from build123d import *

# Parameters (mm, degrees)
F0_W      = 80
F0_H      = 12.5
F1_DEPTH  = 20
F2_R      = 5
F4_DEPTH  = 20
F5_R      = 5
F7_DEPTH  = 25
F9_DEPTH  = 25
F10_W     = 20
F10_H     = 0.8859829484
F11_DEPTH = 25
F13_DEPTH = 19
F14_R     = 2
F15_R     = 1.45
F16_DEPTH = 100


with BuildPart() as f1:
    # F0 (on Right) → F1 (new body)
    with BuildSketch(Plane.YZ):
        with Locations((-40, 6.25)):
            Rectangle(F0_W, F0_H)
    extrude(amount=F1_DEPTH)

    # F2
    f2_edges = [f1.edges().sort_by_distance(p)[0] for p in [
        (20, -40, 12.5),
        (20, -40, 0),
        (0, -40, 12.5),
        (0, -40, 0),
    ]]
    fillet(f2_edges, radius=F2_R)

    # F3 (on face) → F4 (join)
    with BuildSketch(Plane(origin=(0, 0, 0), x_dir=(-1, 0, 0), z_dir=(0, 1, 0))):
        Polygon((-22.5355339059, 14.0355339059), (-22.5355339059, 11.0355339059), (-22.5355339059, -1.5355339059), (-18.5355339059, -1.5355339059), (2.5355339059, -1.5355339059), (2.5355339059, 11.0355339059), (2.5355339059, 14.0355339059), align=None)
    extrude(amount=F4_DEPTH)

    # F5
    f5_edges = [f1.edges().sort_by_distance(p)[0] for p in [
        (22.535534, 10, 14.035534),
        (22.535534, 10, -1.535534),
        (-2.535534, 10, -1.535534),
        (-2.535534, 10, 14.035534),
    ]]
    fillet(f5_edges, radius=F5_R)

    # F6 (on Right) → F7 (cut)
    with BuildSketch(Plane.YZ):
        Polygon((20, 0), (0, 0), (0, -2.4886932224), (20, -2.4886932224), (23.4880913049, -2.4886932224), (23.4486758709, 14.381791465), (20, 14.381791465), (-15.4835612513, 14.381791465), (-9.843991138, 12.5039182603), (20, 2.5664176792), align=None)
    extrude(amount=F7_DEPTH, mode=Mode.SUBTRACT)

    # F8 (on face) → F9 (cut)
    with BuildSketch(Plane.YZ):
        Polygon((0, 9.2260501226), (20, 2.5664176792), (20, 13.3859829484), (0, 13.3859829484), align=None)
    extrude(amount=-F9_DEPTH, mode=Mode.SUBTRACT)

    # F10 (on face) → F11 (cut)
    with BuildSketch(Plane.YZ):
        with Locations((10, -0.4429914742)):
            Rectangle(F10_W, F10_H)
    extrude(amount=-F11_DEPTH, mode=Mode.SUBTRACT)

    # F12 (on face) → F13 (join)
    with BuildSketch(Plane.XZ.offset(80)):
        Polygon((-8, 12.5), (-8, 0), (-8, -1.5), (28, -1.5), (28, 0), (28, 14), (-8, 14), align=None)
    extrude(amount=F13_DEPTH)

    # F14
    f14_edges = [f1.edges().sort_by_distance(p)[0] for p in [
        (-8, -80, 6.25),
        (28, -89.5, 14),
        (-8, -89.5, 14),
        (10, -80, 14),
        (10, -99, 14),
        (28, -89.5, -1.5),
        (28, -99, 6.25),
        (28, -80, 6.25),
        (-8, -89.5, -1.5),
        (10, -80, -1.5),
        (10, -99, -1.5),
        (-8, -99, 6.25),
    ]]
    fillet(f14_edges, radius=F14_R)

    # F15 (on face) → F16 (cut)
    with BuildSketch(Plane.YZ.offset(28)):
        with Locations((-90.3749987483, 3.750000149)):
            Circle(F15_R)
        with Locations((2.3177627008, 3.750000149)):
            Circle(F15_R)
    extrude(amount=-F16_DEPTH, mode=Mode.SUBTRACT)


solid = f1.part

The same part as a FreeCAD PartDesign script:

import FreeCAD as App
import Part
import Sketcher

V = App.Vector
Q = App.Units.Quantity


def edges_at(feature, points):
    """Names of the edges that pass closest to the given points."""
    edges = feature.Shape.Edges
    near = lambda p: min(range(len(edges)), key=lambda i: edges[i].distToShape(Part.Vertex(*p))[0])
    return sorted({f"Edge{near(p) + 1}" for p in points})

doc = App.newDocument("Part")
body = doc.addObject("PartDesign::Body", "Body")

sketch1 = body.newObject("Sketcher::SketchObject", "Sketch")
sketch1.AttachmentSupport = (doc.getObject("YZ_Plane"), [""])
sketch1.MapMode = "FlatFace"
sketch1.addGeometry([
    Part.LineSegment(V(-80, 12, 0), V(-80, 0, 0)),
    Part.LineSegment(V(-80, 0, 0), V(0, 0, 0)),
    Part.LineSegment(V(0, 0, 0), V(0, 12, 0)),
    Part.LineSegment(V(0, 12, 0), V(-80, 12, 0)),
], False)
sketch1.addConstraint([
    Sketcher.Constraint("Coincident", 0, 2, 1, 1),
    Sketcher.Constraint("Coincident", 1, 2, 2, 1),
    Sketcher.Constraint("Coincident", 2, 2, 3, 1),
    Sketcher.Constraint("Coincident", 3, 2, 0, 1),
    Sketcher.Constraint("Vertical", 0),
    Sketcher.Constraint("Horizontal", 1),
    Sketcher.Constraint("Vertical", 2),
    Sketcher.Constraint("Horizontal", 3),
    Sketcher.Constraint("Coincident", 1, 2, -1, 1),
    Sketcher.Constraint("DistanceX", 1, 1, 1, 2, Q("80 mm")),
    Sketcher.Constraint("DistanceY", 0, 2, 0, 1, Q("12.5 mm")),
])
pad1 = body.newObject("PartDesign::Pad", "Pad")
pad1.Profile = sketch1
pad1.Length = 20
doc.recompute()

fillet = body.newObject("PartDesign::Fillet", "Fillet")
fillet.Base = (pad1, edges_at(pad1, [
    (20, -40, 12.5),
    (20, -40, 0),
    (0, -40, 12.5),
    (0, -40, 0),
]))
fillet.Radius = 5

sketch2 = body.newObject("Sketcher::SketchObject", "Sketch001")
sketch2.AttachmentSupport = (doc.getObject("XZ_Plane"), [""])
sketch2.MapMode = "FlatFace"
sketch2.addGeometry([
    Part.LineSegment(V(23, 14, 0), V(23, -2, 0)),
    Part.LineSegment(V(23, -2, 0), V(-3, -2, 0)),
    Part.LineSegment(V(-3, -2, 0), V(-3, 14, 0)),
    Part.LineSegment(V(-3, 14, 0), V(23, 14, 0)),
], False)
sketch2.addConstraint([
    Sketcher.Constraint("Coincident", 0, 2, 1, 1),
    Sketcher.Constraint("Coincident", 1, 2, 2, 1),
    Sketcher.Constraint("Coincident", 2, 2, 3, 1),
    Sketcher.Constraint("Coincident", 3, 2, 0, 1),
    Sketcher.Constraint("Vertical", 0),
    Sketcher.Constraint("Horizontal", 1),
    Sketcher.Constraint("Vertical", 2),
    Sketcher.Constraint("Horizontal", 3),
    Sketcher.Constraint("DistanceX", 1, 2, 1, 1, Q("25.071068 mm")),
    Sketcher.Constraint("DistanceY", 0, 2, 0, 1, Q("15.571068 mm")),
    Sketcher.Constraint("DistanceX", -1, 1, 0, 2, Q("22.535534 mm")),
    Sketcher.Constraint("DistanceY", 0, 2, -1, 1, Q("1.535534 mm")),
])
pad2 = body.newObject("PartDesign::Pad", "Pad001")
pad2.Profile = sketch2
pad2.Length = 20
pad2.Reversed = True
doc.recompute()

fillet2 = body.newObject("PartDesign::Fillet", "Fillet001")
fillet2.Base = (pad2, edges_at(pad2, [
    (22.536, 10, 14.036),
    (22.536, 10, -1.536),
    (-2.536, 10, -1.536),
    (-2.536, 10, 14.036),
]))
fillet2.Radius = 5

sketch3 = body.newObject("Sketcher::SketchObject", "Sketch002")
sketch3.AttachmentSupport = (doc.getObject("YZ_Plane"), [""])
sketch3.MapMode = "FlatFace"
sketch3.addGeometry([
    Part.LineSegment(V(20, 0, 0), V(0, 0, 0)),
    Part.LineSegment(V(0, 0, 0), V(0, -2.5, 0)),
    Part.LineSegment(V(0, -2.5, 0), V(23.5, -2.5, 0)),
    Part.LineSegment(V(23.5, -2.5, 0), V(23.4, 14.4, 0)),
    Part.LineSegment(V(23.4, 14.4, 0), V(-15.5, 14.4, 0)),
    Part.LineSegment(V(-15.5, 14.4, 0), V(-9.8, 12.5, 0)),
    Part.LineSegment(V(-9.8, 12.5, 0), V(20, 2.6, 0)),
    Part.LineSegment(V(20, 2.6, 0), V(20, 0, 0)),
], False)
sketch3.addConstraint([
    Sketcher.Constraint("Coincident", 0, 2, 1, 1),
    Sketcher.Constraint("Coincident", 1, 2, 2, 1),
    Sketcher.Constraint("Coincident", 2, 2, 3, 1),
    Sketcher.Constraint("Coincident", 3, 2, 4, 1),
    Sketcher.Constraint("Coincident", 4, 2, 5, 1),
    Sketcher.Constraint("Coincident", 5, 2, 6, 1),
    Sketcher.Constraint("Coincident", 6, 2, 7, 1),
    Sketcher.Constraint("Coincident", 7, 2, 0, 1),
    Sketcher.Constraint("Horizontal", 0),
    Sketcher.Constraint("Vertical", 1),
    Sketcher.Constraint("Horizontal", 2),
    Sketcher.Constraint("Horizontal", 4),
    Sketcher.Constraint("Vertical", 7),
    Sketcher.Constraint("Coincident", 0, 2, -1, 1),
    Sketcher.Constraint("Parallel", 5, 6),
    Sketcher.Constraint("DistanceX", 0, 2, 0, 1, Q("20 mm")),
    Sketcher.Constraint("Distance", 5, Q("5.944002 mm")),
    Sketcher.Constraint("DistanceX", 2, 1, 2, 2, Q("23.488091 mm")),
    Sketcher.Constraint("DistanceY", 6, 2, 5, 2, Q("9.937501 mm")),
    Sketcher.Constraint("Distance", 3, Q("16.870531 mm")),
    Sketcher.Constraint("Distance", 6, Q("31.455011 mm")),
    Sketcher.Constraint("DistanceX", 4, 2, 4, 1, Q("38.932237 mm")),
    Sketcher.Constraint("DistanceY", 1, 2, 1, 1, Q("2.488693 mm")),
])
pocket1 = body.newObject("PartDesign::Pocket", "Pocket")
pocket1.Profile = sketch3
pocket1.Length = 25
pocket1.Reversed = True

sketch4 = body.newObject("Sketcher::SketchObject", "Sketch003")
sketch4.AttachmentSupport = (doc.getObject("YZ_Plane"), [""])
sketch4.MapMode = "FlatFace"
sketch4.addGeometry([
    Part.LineSegment(V(0, 9.2, 0), V(20, 2.6, 0)),
    Part.LineSegment(V(20, 2.6, 0), V(20, 13.4, 0)),
    Part.LineSegment(V(20, 13.4, 0), V(0, 13.4, 0)),
    Part.LineSegment(V(0, 13.4, 0), V(0, 9.2, 0)),
], False)
sketch4.addConstraint([
    Sketcher.Constraint("Coincident", 0, 2, 1, 1),
    Sketcher.Constraint("Coincident", 1, 2, 2, 1),
    Sketcher.Constraint("Coincident", 2, 2, 3, 1),
    Sketcher.Constraint("Coincident", 3, 2, 0, 1),
    Sketcher.Constraint("Vertical", 1),
    Sketcher.Constraint("Horizontal", 2),
    Sketcher.Constraint("Vertical", 3),
    Sketcher.Constraint("PointOnObject", 2, 2, -2),
    Sketcher.Constraint("DistanceX", 2, 2, 2, 1, Q("20 mm")),
    Sketcher.Constraint("DistanceY", 1, 1, 1, 2, Q("10.819565 mm")),
    Sketcher.Constraint("DistanceY", 3, 2, 3, 1, Q("4.159933 mm")),
    Sketcher.Constraint("DistanceY", -1, 1, 3, 2, Q("9.22605 mm")),
])
pocket2 = body.newObject("PartDesign::Pocket", "Pocket001")
pocket2.Profile = sketch4
pocket2.Length = 25

sketch5 = body.newObject("Sketcher::SketchObject", "Sketch004")
sketch5.AttachmentSupport = (doc.getObject("YZ_Plane"), [""])
sketch5.MapMode = "FlatFace"
sketch5.addGeometry([
    Part.LineSegment(V(0, 0, 0), V(0, -0.9, 0)),
    Part.LineSegment(V(0, -0.9, 0), V(20, -0.9, 0)),
    Part.LineSegment(V(20, -0.9, 0), V(20, 0, 0)),
    Part.LineSegment(V(20, 0, 0), V(0, 0, 0)),
], False)
sketch5.addConstraint([
    Sketcher.Constraint("Coincident", 0, 2, 1, 1),
    Sketcher.Constraint("Coincident", 1, 2, 2, 1),
    Sketcher.Constraint("Coincident", 2, 2, 3, 1),
    Sketcher.Constraint("Coincident", 3, 2, 0, 1),
    Sketcher.Constraint("Vertical", 0),
    Sketcher.Constraint("Horizontal", 1),
    Sketcher.Constraint("Vertical", 2),
    Sketcher.Constraint("Horizontal", 3),
    Sketcher.Constraint("Coincident", 3, 2, -1, 1),
    Sketcher.Constraint("DistanceX", 1, 1, 1, 2, Q("20 mm")),
    Sketcher.Constraint("DistanceY", 0, 2, 0, 1, Q("0.885983 mm")),
])
pocket3 = body.newObject("PartDesign::Pocket", "Pocket002")
pocket3.Profile = sketch5
pocket3.Length = 25

sketch6 = body.newObject("Sketcher::SketchObject", "Sketch005")
sketch6.AttachmentSupport = (doc.getObject("XZ_Plane"), [""])
sketch6.MapMode = "FlatFace"
sketch6.AttachmentOffset = App.Placement(V(0, 0, 80), App.Rotation())
sketch6.addGeometry([
    Part.LineSegment(V(-8, -2, 0), V(28, -2, 0)),
    Part.LineSegment(V(28, -2, 0), V(28, 14, 0)),
    Part.LineSegment(V(28, 14, 0), V(-8, 14, 0)),
    Part.LineSegment(V(-8, 14, 0), V(-8, -2, 0)),
], False)
sketch6.addConstraint([
    Sketcher.Constraint("Coincident", 0, 2, 1, 1),
    Sketcher.Constraint("Coincident", 1, 2, 2, 1),
    Sketcher.Constraint("Coincident", 2, 2, 3, 1),
    Sketcher.Constraint("Coincident", 3, 2, 0, 1),
    Sketcher.Constraint("Horizontal", 0),
    Sketcher.Constraint("Vertical", 1),
    Sketcher.Constraint("Horizontal", 2),
    Sketcher.Constraint("Vertical", 3),
    Sketcher.Constraint("DistanceX", 0, 1, 0, 2, Q("36 mm")),
    Sketcher.Constraint("DistanceY", 1, 1, 1, 2, Q("15.5 mm")),
    Sketcher.Constraint("DistanceX", -1, 1, 0, 2, Q("28 mm")),
    Sketcher.Constraint("DistanceY", -1, 1, 1, 2, Q("14 mm")),
])
pad3 = body.newObject("PartDesign::Pad", "Pad002")
pad3.Profile = sketch6
pad3.Length = 19
doc.recompute()

fillet3 = body.newObject("PartDesign::Fillet", "Fillet002")
fillet3.Base = (pad3, edges_at(pad3, [
    (-8, -80, 6.25),
    (28, -89.5, 14),
    (-8, -89.5, 14),
    (10, -80, 14),
    (10, -99, 14),
    (28, -89.5, -1.5),
    (28, -99, 6.25),
    (28, -80, 6.25),
    (-8, -89.5, -1.5),
    (10, -80, -1.5),
    (10, -99, -1.5),
    (-8, -99, 6.25),
]))
fillet3.Radius = 2

sketch7 = body.newObject("Sketcher::SketchObject", "Sketch006")
sketch7.AttachmentSupport = (doc.getObject("YZ_Plane"), [""])
sketch7.MapMode = "FlatFace"
sketch7.AttachmentOffset = App.Placement(V(0, 0, 28), App.Rotation())
sketch7.addGeometry([
    Part.Circle(V(-90.4, 3.8, 0), V(0, 0, 1), 1.4),
    Part.Circle(V(2.3, 3.8, 0), V(0, 0, 1), 1.4),
], False)
sketch7.addConstraint([
    Sketcher.Constraint("Equal", 0, 1),
    Sketcher.Constraint("Horizontal", 0, 3, 1, 3),
    Sketcher.Constraint("Diameter", 0, Q("2.9 mm")),
    Sketcher.Constraint("DistanceY", -1, 1, 0, 3, Q("3.75 mm")),
    Sketcher.Constraint("DistanceX", 0, 3, -1, 1, Q("90.374999 mm")),
    Sketcher.Constraint("DistanceX", 0, 3, 1, 3, Q("92.692761 mm")),
])
pocket4 = body.newObject("PartDesign::Pocket", "Pocket003")
pocket4.Profile = sketch7
pocket4.Length = 100

doc.recompute()
